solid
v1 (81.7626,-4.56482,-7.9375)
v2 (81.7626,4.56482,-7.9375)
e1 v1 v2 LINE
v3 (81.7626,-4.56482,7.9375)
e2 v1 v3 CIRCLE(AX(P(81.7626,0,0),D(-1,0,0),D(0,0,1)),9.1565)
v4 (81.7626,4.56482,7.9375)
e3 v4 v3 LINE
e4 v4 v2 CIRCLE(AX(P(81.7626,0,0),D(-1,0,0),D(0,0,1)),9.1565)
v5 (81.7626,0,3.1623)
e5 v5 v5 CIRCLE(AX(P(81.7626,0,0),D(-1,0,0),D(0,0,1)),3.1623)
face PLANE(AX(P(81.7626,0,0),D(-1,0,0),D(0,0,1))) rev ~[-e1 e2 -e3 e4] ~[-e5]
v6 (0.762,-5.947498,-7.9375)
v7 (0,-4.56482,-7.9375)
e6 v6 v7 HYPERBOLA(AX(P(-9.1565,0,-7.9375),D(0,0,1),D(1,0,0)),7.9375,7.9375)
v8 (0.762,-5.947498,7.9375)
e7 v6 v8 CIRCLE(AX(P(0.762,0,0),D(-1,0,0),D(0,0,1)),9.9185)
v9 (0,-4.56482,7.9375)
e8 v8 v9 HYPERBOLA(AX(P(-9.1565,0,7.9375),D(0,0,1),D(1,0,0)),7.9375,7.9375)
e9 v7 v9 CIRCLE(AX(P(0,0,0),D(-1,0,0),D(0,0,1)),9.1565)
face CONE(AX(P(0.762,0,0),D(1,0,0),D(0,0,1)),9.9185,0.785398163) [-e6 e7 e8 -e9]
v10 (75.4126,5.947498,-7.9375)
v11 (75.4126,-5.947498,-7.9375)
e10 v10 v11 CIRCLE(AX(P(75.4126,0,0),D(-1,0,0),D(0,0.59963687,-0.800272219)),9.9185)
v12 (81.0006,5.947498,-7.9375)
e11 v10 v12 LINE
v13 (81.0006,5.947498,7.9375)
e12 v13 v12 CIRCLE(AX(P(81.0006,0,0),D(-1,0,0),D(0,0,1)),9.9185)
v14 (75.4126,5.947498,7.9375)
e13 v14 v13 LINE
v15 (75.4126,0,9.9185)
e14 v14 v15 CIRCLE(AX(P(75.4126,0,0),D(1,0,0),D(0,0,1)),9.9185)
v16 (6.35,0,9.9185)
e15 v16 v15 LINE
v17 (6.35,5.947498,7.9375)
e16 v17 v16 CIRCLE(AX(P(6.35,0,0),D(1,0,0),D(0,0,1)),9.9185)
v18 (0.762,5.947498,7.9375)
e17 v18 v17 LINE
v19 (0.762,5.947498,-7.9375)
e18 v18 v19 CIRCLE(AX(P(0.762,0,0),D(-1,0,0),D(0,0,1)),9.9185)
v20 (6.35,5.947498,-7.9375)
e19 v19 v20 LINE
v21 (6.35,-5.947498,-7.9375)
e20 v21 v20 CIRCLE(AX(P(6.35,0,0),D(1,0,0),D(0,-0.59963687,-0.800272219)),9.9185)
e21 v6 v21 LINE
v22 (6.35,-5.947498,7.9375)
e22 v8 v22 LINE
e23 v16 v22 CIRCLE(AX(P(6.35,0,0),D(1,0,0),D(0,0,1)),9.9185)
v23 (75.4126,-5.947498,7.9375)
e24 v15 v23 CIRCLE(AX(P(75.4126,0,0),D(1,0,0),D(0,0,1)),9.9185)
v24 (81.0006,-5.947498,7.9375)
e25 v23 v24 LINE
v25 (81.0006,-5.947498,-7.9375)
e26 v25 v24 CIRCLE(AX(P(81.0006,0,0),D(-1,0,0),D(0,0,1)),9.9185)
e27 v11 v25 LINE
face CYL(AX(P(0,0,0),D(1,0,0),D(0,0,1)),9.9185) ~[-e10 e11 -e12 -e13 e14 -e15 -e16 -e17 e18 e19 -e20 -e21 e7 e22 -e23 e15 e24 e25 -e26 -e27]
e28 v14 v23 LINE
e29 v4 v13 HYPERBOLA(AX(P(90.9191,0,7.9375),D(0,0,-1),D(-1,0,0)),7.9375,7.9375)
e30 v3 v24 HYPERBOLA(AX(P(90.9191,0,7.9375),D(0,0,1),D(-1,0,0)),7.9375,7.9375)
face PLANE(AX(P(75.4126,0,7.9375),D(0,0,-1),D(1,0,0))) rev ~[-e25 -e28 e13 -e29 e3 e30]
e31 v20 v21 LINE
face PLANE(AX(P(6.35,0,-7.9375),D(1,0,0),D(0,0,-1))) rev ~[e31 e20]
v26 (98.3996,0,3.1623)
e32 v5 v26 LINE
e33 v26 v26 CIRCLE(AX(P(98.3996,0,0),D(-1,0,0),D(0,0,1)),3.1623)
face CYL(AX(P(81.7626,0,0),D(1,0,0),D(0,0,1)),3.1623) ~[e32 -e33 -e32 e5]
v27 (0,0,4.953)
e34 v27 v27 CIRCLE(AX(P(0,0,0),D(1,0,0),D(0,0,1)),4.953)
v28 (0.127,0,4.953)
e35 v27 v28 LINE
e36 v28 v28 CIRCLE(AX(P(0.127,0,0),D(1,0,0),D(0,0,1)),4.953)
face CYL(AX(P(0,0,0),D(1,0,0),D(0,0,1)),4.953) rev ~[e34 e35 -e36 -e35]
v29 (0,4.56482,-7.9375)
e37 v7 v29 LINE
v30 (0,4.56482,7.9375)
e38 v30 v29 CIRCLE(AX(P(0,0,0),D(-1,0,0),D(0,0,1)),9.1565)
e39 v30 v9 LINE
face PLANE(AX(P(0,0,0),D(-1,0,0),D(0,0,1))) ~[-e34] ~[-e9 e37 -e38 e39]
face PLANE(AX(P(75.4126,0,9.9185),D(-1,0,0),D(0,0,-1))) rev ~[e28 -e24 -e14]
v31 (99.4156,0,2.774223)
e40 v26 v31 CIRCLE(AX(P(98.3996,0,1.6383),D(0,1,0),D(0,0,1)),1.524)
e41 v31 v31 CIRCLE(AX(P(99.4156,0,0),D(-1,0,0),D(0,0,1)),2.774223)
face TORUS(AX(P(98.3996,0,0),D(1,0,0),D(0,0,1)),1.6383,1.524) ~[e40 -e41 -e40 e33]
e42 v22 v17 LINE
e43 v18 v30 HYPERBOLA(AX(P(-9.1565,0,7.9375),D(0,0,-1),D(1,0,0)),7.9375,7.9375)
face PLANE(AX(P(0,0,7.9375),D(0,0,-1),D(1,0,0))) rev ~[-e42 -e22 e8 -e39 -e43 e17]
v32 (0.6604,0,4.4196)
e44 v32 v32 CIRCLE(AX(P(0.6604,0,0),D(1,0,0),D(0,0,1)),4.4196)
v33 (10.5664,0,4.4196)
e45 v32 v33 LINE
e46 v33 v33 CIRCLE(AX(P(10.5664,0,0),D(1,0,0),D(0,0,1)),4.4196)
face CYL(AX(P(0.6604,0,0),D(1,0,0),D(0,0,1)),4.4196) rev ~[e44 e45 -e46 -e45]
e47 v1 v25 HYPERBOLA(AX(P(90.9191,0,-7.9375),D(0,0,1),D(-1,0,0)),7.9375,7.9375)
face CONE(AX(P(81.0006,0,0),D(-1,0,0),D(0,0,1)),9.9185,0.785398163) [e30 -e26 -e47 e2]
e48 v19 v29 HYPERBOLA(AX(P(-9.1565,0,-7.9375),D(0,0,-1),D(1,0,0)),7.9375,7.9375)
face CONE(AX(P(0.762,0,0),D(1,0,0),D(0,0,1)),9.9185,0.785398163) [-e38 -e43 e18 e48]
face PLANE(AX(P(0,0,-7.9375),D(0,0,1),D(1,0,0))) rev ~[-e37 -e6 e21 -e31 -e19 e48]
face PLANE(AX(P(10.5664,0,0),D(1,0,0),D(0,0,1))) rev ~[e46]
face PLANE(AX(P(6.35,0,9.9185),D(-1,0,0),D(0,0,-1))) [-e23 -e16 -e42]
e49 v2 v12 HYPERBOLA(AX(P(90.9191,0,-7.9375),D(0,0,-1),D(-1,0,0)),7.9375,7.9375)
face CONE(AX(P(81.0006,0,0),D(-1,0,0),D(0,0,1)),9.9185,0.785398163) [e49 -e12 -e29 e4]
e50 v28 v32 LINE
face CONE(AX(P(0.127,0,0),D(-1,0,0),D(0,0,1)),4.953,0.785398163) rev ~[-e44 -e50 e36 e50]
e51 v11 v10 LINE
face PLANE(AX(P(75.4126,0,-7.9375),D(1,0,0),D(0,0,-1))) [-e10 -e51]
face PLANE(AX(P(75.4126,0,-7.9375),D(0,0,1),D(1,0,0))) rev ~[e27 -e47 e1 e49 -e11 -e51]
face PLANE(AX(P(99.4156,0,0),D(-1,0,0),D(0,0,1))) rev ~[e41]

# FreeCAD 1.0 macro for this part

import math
import FreeCAD as App
import Part
import Sketcher
Q = App.Units.Quantity


def edges_at(feature, points):
    """Names of the edges that pass closest to the given points."""
    edges = feature.Shape.Edges
    near = lambda p: min(range(len(edges)), key=lambda i: edges[i].distToShape(Part.Vertex(*p))[0])
    return sorted({f"Edge{near(p) + 1}" for p in points})


def add_polygon(sketch, points):
    """Adds a closed chain of lines whose ends are joined by coincident constraints."""
    first, n = sketch.GeometryCount, len(points)
    for a, b in zip(points, points[1:] + points[:1]):
        sketch.addGeometry(Part.LineSegment(App.Vector(*a, 0), App.Vector(*b, 0)), False)
    for i in range(n):
        sketch.addConstraint(Sketcher.Constraint("Coincident", first + i, 2, first + (i + 1) % n, 1))

doc = App.newDocument("Part")
params = doc.addObject("Spreadsheet::Sheet", "Params")
for row, (alias, value) in enumerate([
    ("sketch1_radius", "0.06 in"),
    ("sketch1_width", "3.914 in"),
    ("sketch1_width2", "3.219 in"),
    ("sketch1_width3", "0.655 in"),
    ("revolution_angle", "360 deg"),
    ("sketch2_width", "0.39 in"),
    ("sketch2_width2", "0.005 in"),
    ("sketch2_width3", "0.416 in"),
    ("sketch2_height", "0.195 in"),
    ("groove_angle", "360 deg"),
    ("chamfer_size", "0.03 in"),
    ("sketch3_width", "0.25 in"),
    ("sketch4_width", "0.25 in"),
], start=1):
    params.set(f"A{row}", alias)
    params.set(f"B{row}", "=" + value)
    params.setAlias(f"B{row}", alias)

body = doc.addObject("PartDesign::Body", "Body")

# Sketch on XY plane
sketch1 = body.newObject("Sketcher::SketchObject", "Sketch")
sketch1.AttachmentSupport = (doc.getObject("XY_Plane"), [""])
sketch1.MapMode = "FlatFace"
sketch1.addGeometry([
    Part.LineSegment(App.Vector(99.4, 2.8, 0), App.Vector(99.4, 0, 0)),  # 0
    Part.LineSegment(App.Vector(99.4, 0, 0), App.Vector(0, 0, 0)),  # 1
    Part.LineSegment(App.Vector(0, 0, 0), App.Vector(0, 9.9, 0)),  # 2
    Part.LineSegment(App.Vector(0, 9.9, 0), App.Vector(81.8, 9.9, 0)),  # 3
    Part.LineSegment(App.Vector(81.8, 9.9, 0), App.Vector(81.8, 3.2, 0)),  # 4
    Part.LineSegment(App.Vector(81.8, 3.2, 0), App.Vector(98.4, 3.2, 0)),  # 5
    Part.ArcOfCircle(Part.Circle(App.Vector(98.4, 1.6, 0), App.Vector(0, 0, 1), 1.5), math.radians(48), math.radians(90)),  # 6
], False)
sketch1.addConstraint([
    Sketcher.Constraint("Coincident", 0, 2, 1, 1),
    Sketcher.Constraint("Coincident", 1, 2, 2, 1),
    Sketcher.Constraint("Coincident", 2, 2, 3, 1),
    Sketcher.Constraint("Coincident", 3, 2, 4, 1),
    Sketcher.Constraint("Coincident", 4, 2, 5, 1),
    Sketcher.Constraint("Tangent", 5, 2, 6, 2),
    Sketcher.Constraint("Coincident", 6, 1, 0, 1),
    Sketcher.Constraint("Vertical", 0),
    Sketcher.Constraint("Horizontal", 1),
    Sketcher.Constraint("Vertical", 2),
    Sketcher.Constraint("Horizontal", 3),
    Sketcher.Constraint("Vertical", 4),
    Sketcher.Constraint("Horizontal", 5),
    Sketcher.Constraint("Coincident", 1, 2, -1, 1),
    Sketcher.Constraint("Radius", 6, Q("0.06 in")),
    Sketcher.Constraint("DistanceX", 1, 2, 1, 1, Q("3.914 in")),
    Sketcher.Constraint("DistanceX", 3, 1, 3, 2, Q("3.219 in")),
    Sketcher.Constraint("DistanceX", 5, 1, 5, 2, Q("0.655 in")),
    Sketcher.Constraint("DistanceY", 2, 1, 2, 2, Q("9.9185 mm")),
    Sketcher.Constraint("DistanceY", 4, 2, 4, 1, Q("6.7562 mm")),
])
sketch1.setExpression("Constraints[14]", "Params.sketch1_radius")
sketch1.setExpression("Constraints[15]", "Params.sketch1_width")
sketch1.setExpression("Constraints[16]", "Params.sketch1_width2")
sketch1.setExpression("Constraints[17]", "Params.sketch1_width3")
revolution = body.newObject("PartDesign::Revolution", "Revolution")
revolution.Profile = sketch1
revolution.ReferenceAxis = (sketch1, ["H_Axis"])
revolution.setExpression("Angle", "Params.revolution_angle")

# Sketch on XY plane
sketch2 = body.newObject("Sketcher::SketchObject", "Sketch001")
sketch2.AttachmentSupport = (doc.getObject("XY_Plane"), [""])
sketch2.MapMode = "FlatFace"
add_polygon(sketch2, [(0, 0), (0, 4.95), (0.13, 4.95), (0.66, 4.42), (10.57, 4.42), (10.57, 0)])  # lines 0-5
sketch2.addConstraint([
    Sketcher.Constraint("Vertical", 0),
    Sketcher.Constraint("Horizontal", 1),
    Sketcher.Constraint("Horizontal", 3),
    Sketcher.Constraint("Vertical", 4),
    Sketcher.Constraint("Horizontal", 5),
    Sketcher.Constraint("Coincident", 5, 2, -1, 1),
    Sketcher.Constraint("Angle", 2, Q("-45 deg")),
    Sketcher.Constraint("DistanceX", 3, 1, 3, 2, Q("0.39 in")),
    Sketcher.Constraint("DistanceX", 1, 1, 1, 2, Q("0.005 in")),
    Sketcher.Constraint("DistanceX", 5, 2, 5, 1, Q("0.416 in")),
    Sketcher.Constraint("DistanceY", 0, 1, 0, 2, Q("0.195 in")),
])
sketch2.setExpression("Constraints[13]", "Params.sketch2_width")
sketch2.setExpression("Constraints[14]", "Params.sketch2_width2")
sketch2.setExpression("Constraints[15]", "Params.sketch2_width3")
sketch2.setExpression("Constraints[16]", "Params.sketch2_height")
groove = body.newObject("PartDesign::Groove", "Groove")
groove.Profile = sketch2
groove.ReferenceAxis = (sketch2, ["H_Axis"])
groove.setExpression("Angle", "Params.groove_angle")
doc.recompute()

chamfer = body.newObject("PartDesign::Chamfer", "Chamfer")
chamfer.Base = (groove, edges_at(groove, [(81.763, 0, -9.918), (0, 0, -9.918)]))
chamfer.setExpression("Size", "Params.chamfer_size")

# Sketch on XZ plane
sketch3 = body.newObject("Sketcher::SketchObject", "Sketch002")
sketch3.AttachmentSupport = (doc.getObject("XZ_Plane"), [""])
sketch3.MapMode = "FlatFace"
add_polygon(sketch3, [(0, -9.9), (0, -7.9), (6.3, -7.9), (6.3, -9.9)])  # lines 0-3
add_polygon(sketch3, [(0, 7.9), (0, 9.9), (6.3, 9.9), (6.3, 7.9)])  # lines 4-7
sketch3.addConstraint([
    Sketcher.Constraint("Vertical", 0),
    Sketcher.Constraint("Horizontal", 1),
    Sketcher.Constraint("Vertical", 2),
    Sketcher.Constraint("Horizontal", 3),
    Sketcher.Constraint("Vertical", 4),
    Sketcher.Constraint("Horizontal", 5),
    Sketcher.Constraint("Vertical", 6),
    Sketcher.Constraint("Horizontal", 7),
    Sketcher.Constraint("Symmetric", 3, 2, 4, 2, -1, 1),
    Sketcher.Constraint("Symmetric", 1, 2, 6, 2, -1),
    Sketcher.Constraint("PointOnObject", 0, 2, -2),
    Sketcher.Constraint("DistanceX", 1, 1, 1, 2, Q("0.25 in")),
    Sketcher.Constraint("DistanceY", 0, 2, -1, 1, Q("0.3125 in")),
    Sketcher.Constraint("DistanceY", 0, 1, 0, 2, Q("1.981 mm")),
])
sketch3.setExpression("Constraints[19]", "Params.sketch3_width")
pocket1 = body.newObject("PartDesign::Pocket", "Pocket")
pocket1.Profile = sketch3
pocket1.Type = "ThroughAll"
pocket1.Midplane = True

# Sketch on XZ plane
sketch4 = body.newObject("Sketcher::SketchObject", "Sketch003")
sketch4.AttachmentSupport = (doc.getObject("XZ_Plane"), [""])
sketch4.MapMode = "FlatFace"
add_polygon(sketch4, [(75.4, -9.9), (75.4, -7.9), (81.8, -7.9), (81.8, -9.9)])  # lines 0-3
add_polygon(sketch4, [(75.4, 7.9), (75.4, 9.9), (81.8, 9.9), (81.8, 7.9)])  # lines 4-7
sketch4.addConstraint([
    Sketcher.Constraint("Vertical", 0),
    Sketcher.Constraint("Horizontal", 1),
    Sketcher.Constraint("Vertical", 2),
    Sketcher.Constraint("Horizontal", 3),
    Sketcher.Constraint("Vertical", 4),
    Sketcher.Constraint("Horizontal", 5),
    Sketcher.Constraint("Vertical", 6),
    Sketcher.Constraint("Horizontal", 7),
    Sketcher.Constraint("Symmetric", 3, 2, 4, 2, -1),
    Sketcher.Constraint("Symmetric", 1, 2, 6, 2, -1),
    Sketcher.Constraint("DistanceX", 1, 1, 1, 2, Q("0.25 in")),
    Sketcher.Constraint("DistanceX", -1, 1, 0, 2, Q("2.969 in")),
    Sketcher.Constraint("DistanceY", 0, 2, -1, 1, Q("0.3125 in")),
    Sketcher.Constraint("DistanceY", 0, 1, 0, 2, Q("1.981 mm")),
])
sketch4.setExpression("Constraints[18]", "Params.sketch4_width")
pocket2 = body.newObject("PartDesign::Pocket", "Pocket001")
pocket2.Profile = sketch4
pocket2.Type = "ThroughAll"
pocket2.Midplane = True

doc.recompute()
